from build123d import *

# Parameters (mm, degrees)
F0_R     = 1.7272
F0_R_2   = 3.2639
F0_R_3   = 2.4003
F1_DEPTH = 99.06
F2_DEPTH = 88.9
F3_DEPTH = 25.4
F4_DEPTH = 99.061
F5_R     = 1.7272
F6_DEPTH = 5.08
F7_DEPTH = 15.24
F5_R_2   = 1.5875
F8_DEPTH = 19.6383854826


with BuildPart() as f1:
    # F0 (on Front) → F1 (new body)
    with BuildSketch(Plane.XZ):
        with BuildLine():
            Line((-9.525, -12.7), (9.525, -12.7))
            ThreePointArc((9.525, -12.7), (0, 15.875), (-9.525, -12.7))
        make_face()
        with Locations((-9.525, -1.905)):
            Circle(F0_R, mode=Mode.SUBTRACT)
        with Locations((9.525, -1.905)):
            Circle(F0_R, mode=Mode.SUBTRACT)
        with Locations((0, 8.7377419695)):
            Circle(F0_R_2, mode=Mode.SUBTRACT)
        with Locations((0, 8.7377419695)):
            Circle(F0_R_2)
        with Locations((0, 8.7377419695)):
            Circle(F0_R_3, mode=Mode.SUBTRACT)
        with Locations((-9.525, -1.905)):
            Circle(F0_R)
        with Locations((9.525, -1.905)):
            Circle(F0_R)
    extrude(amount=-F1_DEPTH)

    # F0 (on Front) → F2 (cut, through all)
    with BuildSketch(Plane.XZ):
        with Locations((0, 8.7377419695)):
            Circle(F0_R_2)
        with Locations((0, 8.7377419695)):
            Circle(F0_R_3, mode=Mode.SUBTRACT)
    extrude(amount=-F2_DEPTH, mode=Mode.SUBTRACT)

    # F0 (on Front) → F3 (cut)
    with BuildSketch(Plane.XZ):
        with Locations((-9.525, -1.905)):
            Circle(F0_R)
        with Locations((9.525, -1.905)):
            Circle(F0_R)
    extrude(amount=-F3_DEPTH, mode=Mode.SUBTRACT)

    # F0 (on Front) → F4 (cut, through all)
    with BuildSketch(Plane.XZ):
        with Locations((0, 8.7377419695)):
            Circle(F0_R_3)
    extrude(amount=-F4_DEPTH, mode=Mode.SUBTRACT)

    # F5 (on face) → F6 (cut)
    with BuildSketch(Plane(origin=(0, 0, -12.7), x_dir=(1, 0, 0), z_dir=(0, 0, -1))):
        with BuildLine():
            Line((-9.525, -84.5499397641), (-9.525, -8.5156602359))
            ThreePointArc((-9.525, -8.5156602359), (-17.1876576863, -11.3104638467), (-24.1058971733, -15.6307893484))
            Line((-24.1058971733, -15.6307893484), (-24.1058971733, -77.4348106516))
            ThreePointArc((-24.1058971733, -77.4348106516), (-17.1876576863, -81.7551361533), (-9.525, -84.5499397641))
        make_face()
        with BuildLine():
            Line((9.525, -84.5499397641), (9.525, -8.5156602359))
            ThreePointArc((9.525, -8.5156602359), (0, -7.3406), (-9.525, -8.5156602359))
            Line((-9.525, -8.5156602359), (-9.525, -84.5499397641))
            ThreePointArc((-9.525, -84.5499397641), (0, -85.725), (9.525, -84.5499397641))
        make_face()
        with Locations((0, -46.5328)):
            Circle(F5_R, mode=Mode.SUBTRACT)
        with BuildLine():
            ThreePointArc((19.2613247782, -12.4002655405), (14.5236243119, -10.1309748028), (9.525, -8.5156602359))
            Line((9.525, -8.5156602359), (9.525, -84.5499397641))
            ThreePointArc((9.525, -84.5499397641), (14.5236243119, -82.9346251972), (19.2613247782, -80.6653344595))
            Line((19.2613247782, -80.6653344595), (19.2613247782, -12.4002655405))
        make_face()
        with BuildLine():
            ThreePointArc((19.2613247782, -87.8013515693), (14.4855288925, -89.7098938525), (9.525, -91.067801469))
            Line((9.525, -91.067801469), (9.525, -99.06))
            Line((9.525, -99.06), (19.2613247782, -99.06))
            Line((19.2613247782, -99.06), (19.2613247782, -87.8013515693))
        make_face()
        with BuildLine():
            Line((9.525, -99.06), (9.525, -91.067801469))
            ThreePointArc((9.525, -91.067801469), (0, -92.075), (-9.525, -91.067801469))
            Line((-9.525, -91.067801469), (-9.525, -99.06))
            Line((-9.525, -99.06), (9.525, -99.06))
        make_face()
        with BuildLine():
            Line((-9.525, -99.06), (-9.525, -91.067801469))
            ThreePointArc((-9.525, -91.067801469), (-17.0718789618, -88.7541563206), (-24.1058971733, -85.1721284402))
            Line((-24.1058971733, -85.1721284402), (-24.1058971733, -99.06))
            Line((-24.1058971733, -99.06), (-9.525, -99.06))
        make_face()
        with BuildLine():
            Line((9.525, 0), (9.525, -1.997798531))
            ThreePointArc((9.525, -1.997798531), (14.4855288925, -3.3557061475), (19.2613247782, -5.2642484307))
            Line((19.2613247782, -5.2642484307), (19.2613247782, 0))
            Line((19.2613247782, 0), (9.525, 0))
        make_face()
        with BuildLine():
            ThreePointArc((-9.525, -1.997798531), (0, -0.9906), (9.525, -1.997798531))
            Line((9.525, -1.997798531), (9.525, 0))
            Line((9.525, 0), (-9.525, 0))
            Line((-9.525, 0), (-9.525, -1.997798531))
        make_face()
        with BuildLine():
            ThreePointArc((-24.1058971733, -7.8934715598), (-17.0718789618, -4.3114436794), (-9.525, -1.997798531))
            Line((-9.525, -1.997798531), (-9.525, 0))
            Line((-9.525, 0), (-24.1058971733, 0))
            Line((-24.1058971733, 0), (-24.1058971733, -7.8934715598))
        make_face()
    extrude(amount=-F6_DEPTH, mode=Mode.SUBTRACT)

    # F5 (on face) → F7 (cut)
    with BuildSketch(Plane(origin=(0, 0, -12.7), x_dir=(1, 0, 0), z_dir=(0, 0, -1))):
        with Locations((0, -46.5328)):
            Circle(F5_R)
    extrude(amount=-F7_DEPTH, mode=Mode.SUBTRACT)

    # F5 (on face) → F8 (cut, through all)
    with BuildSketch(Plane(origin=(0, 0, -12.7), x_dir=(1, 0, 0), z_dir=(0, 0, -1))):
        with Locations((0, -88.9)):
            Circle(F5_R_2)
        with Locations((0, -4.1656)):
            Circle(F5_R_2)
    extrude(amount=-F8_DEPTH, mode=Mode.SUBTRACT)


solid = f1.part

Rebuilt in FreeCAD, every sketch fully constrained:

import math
import FreeCAD as App
import Part
import Sketcher
from FreeCAD import Vector
Q = App.Units.Quantity

doc = App.newDocument("Part")
body = doc.addObject("PartDesign::Body", "Body")

# Sketch on XZ plane
sketch1 = body.newObject("Sketcher::SketchObject", "Sketch")
sketch1.AttachmentSupport = (doc.getObject("XZ_Plane"), [""])
sketch1.MapMode = "FlatFace"
sketch1.addGeometry([
    Part.LineSegment(Vector(-9.525, -12.7, 0), Vector(9.525, -12.7, 0)),
    Part.ArcOfCircle(Part.Circle(Vector(0, 0, 0), Vector(0, 0, 1), 15.875), math.radians(-53.130102), math.radians(233.130102)),
    Part.Circle(Vector(0, 8.737742, 0), Vector(0, 0, 1), 2.4003),
], False)
sketch1.addConstraint([
    Sketcher.Constraint("Coincident", 0, 1, 1, 2),
    Sketcher.Constraint("Coincident", 1, 1, 0, 2),
    Sketcher.Constraint("Horizontal", 0),
    Sketcher.Constraint("Coincident", 1, 3, -1, 1),
    Sketcher.Constraint("PointOnObject", 2, 3, -2),
    Sketcher.Constraint("Diameter", 2, Q("0.189 in")),
    Sketcher.Constraint("Radius", 1, Q("0.625 in")),
    Sketcher.Constraint("DistanceX", 0, 1, 0, 2, Q("0.75 in")),
    Sketcher.Constraint("DistanceY", -1, 1, 2, 3, 8.737742),
])
pad1 = body.newObject("PartDesign::Pad", "Pad")
pad1.Profile = sketch1
pad1.Length = Q("3.9 in")
pad1.Reversed = True

# Sketch on XZ plane
sketch2 = body.newObject("Sketcher::SketchObject", "Sketch001")
sketch2.AttachmentSupport = (doc.getObject("XZ_Plane"), [""])
sketch2.MapMode = "FlatFace"
sketch2.addGeometry([
    Part.Circle(Vector(0, 8.737742, 0), Vector(0, 0, 1), 3.2639),
    Part.Circle(Vector(0, 8.737742, 0), Vector(0, 0, 1), 2.4003),
], False)
sketch2.addConstraint([
    Sketcher.Constraint("Coincident", 1, 3, 0, 3),
    Sketcher.Constraint("PointOnObject", 0, 3, -2),
    Sketcher.Constraint("Diameter", 0, Q("0.257 in")),
    Sketcher.Constraint("Diameter", 1, Q("0.189 in")),
    Sketcher.Constraint("DistanceY", -1, 1, 0, 3, 8.737742),
])
pocket1 = body.newObject("PartDesign::Pocket", "Pocket")
pocket1.Profile = sketch2
pocket1.Length = Q("3.5 in")

# Sketch on XZ plane
sketch3 = body.newObject("Sketcher::SketchObject", "Sketch002")
sketch3.AttachmentSupport = (doc.getObject("XZ_Plane"), [""])
sketch3.MapMode = "FlatFace"
sketch3.addGeometry([
    Part.Circle(Vector(-9.525, -1.905, 0), Vector(0, 0, 1), 1.7272),
    Part.Circle(Vector(9.525, -1.905, 0), Vector(0, 0, 1), 1.7272),
], False)
sketch3.addConstraint([
    Sketcher.Constraint("Equal", 0, 1),
    Sketcher.Constraint("Symmetric", 0, 3, 1, 3, -2),
    Sketcher.Constraint("Diameter", 0, Q("0.136 in")),
    Sketcher.Constraint("DistanceX", 0, 3, 1, 3, Q("0.75 in")),
    Sketcher.Constraint("DistanceY", 0, 3, -1, 1, Q("0.075 in")),
])
pocket2 = body.newObject("PartDesign::Pocket", "Pocket001")
pocket2.Profile = sketch3
pocket2.Length = Q("1 in")

# Sketch on XZ plane
sketch4 = body.newObject("Sketcher::SketchObject", "Sketch003")
sketch4.AttachmentSupport = (doc.getObject("XZ_Plane"), [""])
sketch4.MapMode = "FlatFace"
sketch4.addGeometry(Part.Circle(Vector(0, 8.737742, 0), Vector(0, 0, 1), 2.4003), False)
sketch4.addConstraint([
    Sketcher.Constraint("PointOnObject", 0, 3, -2),
    Sketcher.Constraint("Diameter", 0, Q("0.189 in")),
    Sketcher.Constraint("DistanceY", -1, 1, 0, 3, 8.737742),
])
pocket3 = body.newObject("PartDesign::Pocket", "Pocket002")
pocket3.Profile = sketch4
pocket3.Type = "ThroughAll"

# Sketch on XY plane
sketch5 = body.newObject("Sketcher::SketchObject", "Sketch004")
sketch5.AttachmentSupport = (doc.getObject("XY_Plane"), [""])
sketch5.MapMode = "FlatFace"
sketch5.AttachmentOffset = App.Placement(Vector(0, 0, -0.5 * 25.4), App.Rotation())
sketch5.addGeometry([
    Part.ArcOfCircle(Part.Circle(Vector(0, 46.5328, 0), Vector(0, 0, 1), 39.1922), math.radians(-127.956915), math.radians(-104.065623)),  # 0
    Part.LineSegment(Vector(-24.105897, 15.630789, 0), Vector(-24.105897, 77.434811, 0)),  # 1
    Part.ArcOfCircle(Part.Circle(Vector(0, 46.5328, 0), Vector(0, 0, 1), 39.1922), math.radians(104.065623), math.radians(127.956915)),  # 2
    Part.ArcOfCircle(Part.Circle(Vector(0, 46.5328, 0), Vector(0, 0, 1), 39.1922), math.radians(75.934377), math.radians(104.065623)),  # 3
    Part.ArcOfCircle(Part.Circle(Vector(0, 46.5328, 0), Vector(0, 0, 1), 39.1922), math.radians(60.563536), math.radians(75.934377)),  # 4
    Part.LineSegment(Vector(19.261325, 80.665334, 0), Vector(19.261325, 12.400266, 0)),  # 5
    Part.ArcOfCircle(Part.Circle(Vector(0, 46.5328, 0), Vector(0, 0, 1), 39.1922), math.radians(-75.934377), math.radians(-60.563536)),  # 6
    Part.ArcOfCircle(Part.Circle(Vector(0, 46.5328, 0), Vector(0, 0, 1), 39.1922), math.radians(-104.065623), math.radians(-75.934377)),  # 7
    Part.Circle(Vector(0, 46.5328, 0), Vector(0, 0, 1), 1.7272),  # 8
    Part.ArcOfCircle(Part.Circle(Vector(0, 46.5328, 0), Vector(0, 0, 1), 45.5422), math.radians(64.980066), math.radians(77.92765)),  # 9
    Part.ArcOfCircle(Part.Circle(Vector(0, 46.5328, 0), Vector(0, 0, 1), 45.5422), math.radians(77.92765), math.radians(102.07235)),  # 10
    Part.ArcOfCircle(Part.Circle(Vector(0, 46.5328, 0), Vector(0, 0, 1), 45.5422), math.radians(102.07235), math.radians(121.95878)),  # 11
    Part.LineSegment(Vector(-24.105897, 85.172128, 0), Vector(-24.105897, 99.06, 0)),  # 12
    Part.LineSegment(Vector(-24.105897, 99.06, 0), Vector(19.261325, 99.06, 0)),  # 13
    Part.LineSegment(Vector(19.261325, 99.06, 0), Vector(19.261325, 87.801352, 0)),  # 14
    Part.ArcOfCircle(Part.Circle(Vector(0, 46.5328, 0), Vector(0, 0, 1), 45.5422), math.radians(-77.92765), math.radians(-64.980066)),  # 15
    Part.LineSegment(Vector(19.261325, 5.264248, 0), Vector(19.261325, 0, 0)),  # 16
    Part.LineSegment(Vector(19.261325, 0, 0), Vector(-24.105897, 0, 0)),  # 17
    Part.LineSegment(Vector(-24.105897, 0, 0), Vector(-24.105897, 7.893472, 0)),  # 18
    Part.ArcOfCircle(Part.Circle(Vector(0, 46.5328, 0), Vector(0, 0, 1), 45.5422), math.radians(-121.95878), math.radians(-102.07235)),  # 19
    Part.ArcOfCircle(Part.Circle(Vector(0, 46.5328, 0), Vector(0, 0, 1), 45.5422), math.radians(-102.07235), math.radians(-77.92765)),  # 20
], False)
sketch5.addConstraint([
    Sketcher.Constraint("Coincident", 0, 1, 1, 1),
    Sketcher.Constraint("Coincident", 1, 2, 2, 2),
    Sketcher.Constraint("Tangent", 2, 1, 3, 2),
    Sketcher.Constraint("Tangent", 3, 1, 4, 2),
    Sketcher.Constraint("Coincident", 4, 1, 5, 1),
    Sketcher.Constraint("Coincident", 5, 2, 6, 2),
    Sketcher.Constraint("Tangent", 6, 1, 7, 2),
    Sketcher.Constraint("Tangent", 7, 1, 0, 2),
    Sketcher.Constraint("Tangent", 9, 2, 10, 1),
    Sketcher.Constraint("Tangent", 10, 2, 11, 1),
    Sketcher.Constraint("Coincident", 11, 2, 12, 1),
    Sketcher.Constraint("Coincident", 12, 2, 13, 1),
    Sketcher.Constraint("Coincident", 13, 2, 14, 1),
    Sketcher.Constraint("Coincident", 14, 2, 9, 1),
    Sketcher.Constraint("Coincident", 15, 2, 16, 1),
    Sketcher.Constraint("Coincident", 16, 2, 17, 1),
    Sketcher.Constraint("Coincident", 17, 2, 18, 1),
    Sketcher.Constraint("Coincident", 18, 2, 19, 1),
    Sketcher.Constraint("Tangent", 19, 2, 20, 1),
    Sketcher.Constraint("Tangent", 20, 2, 15, 1),
    Sketcher.Constraint("Vertical", 1),
    Sketcher.Constraint("Vertical", 5),
    Sketcher.Constraint("Vertical", 12),
    Sketcher.Constraint("Horizontal", 13),
    Sketcher.Constraint("Vertical", 14),
    Sketcher.Constraint("Vertical", 16),
    Sketcher.Constraint("Horizontal", 17),
    Sketcher.Constraint("Vertical", 18),
    Sketcher.Constraint("Coincident", 2, 3, 0, 3),
    Sketcher.Constraint("Coincident", 4, 3, 0, 3),
    Sketcher.Constraint("Coincident", 6, 3, 0, 3),
    Sketcher.Constraint("Coincident", 8, 3, 0, 3),
    Sketcher.Constraint("Coincident", 9, 3, 0, 3),
    Sketcher.Constraint("Coincident", 11, 3, 0, 3),
    Sketcher.Constraint("Coincident", 15, 3, 0, 3),
    Sketcher.Constraint("Coincident", 19, 3, 0, 3),
    Sketcher.Constraint("Equal", 0, 2),
    Sketcher.Constraint("Equal", 11, 15),
    Sketcher.Constraint("Symmetric", 2, 1, 3, 1, -2),
    Sketcher.Constraint("PointOnObject", 16, 2, -1),
    Sketcher.Constraint("Horizontal", 6, 1, 7, 1),
    Sketcher.Constraint("Horizontal", 9, 2, 10, 2),
    Sketcher.Constraint("Horizontal", 19, 2, 20, 2),
    Sketcher.Constraint("Vertical", 3, 1, 6, 1),
    Sketcher.Constraint("Vertical", 6, 1, 9, 2),
    Sketcher.Constraint("Vertical", 1, 2, 11, 2),
    Sketcher.Constraint("Vertical", 5, 2, 13, 2),
    Sketcher.Constraint("Vertical", 14, 2, 15, 2),
    Sketcher.Constraint("Vertical", 12, 2, 17, 2),
    Sketcher.Constraint("Vertical", 10, 2, 19, 2),
    Sketcher.Constraint("Diameter", 8, Q("0.136 in")),
    Sketcher.Constraint("Radius", 0, Q("1.543 in")),
    Sketcher.Constraint("Radius", 9, Q("1.793 in")),
    Sketcher.Constraint("DistanceY", -1, 1, 12, 2, Q("3.9 in")),
    Sketcher.Constraint("DistanceX", 2, 1, 3, 1, Q("0.75 in")),
    Sketcher.Constraint("DistanceY", -1, 1, 0, 3, Q("1.832 in")),
    Sketcher.Constraint("DistanceX", 13, 1, 13, 2, 43.367222),
    Sketcher.Constraint("DistanceY", 1, 1, 1, 2, 61.804021),
])
pocket4 = body.newObject("PartDesign::Pocket", "Pocket003")
pocket4.Profile = sketch5
pocket4.Length = Q("0.2 in")
pocket4.Reversed = True

# Sketch on XY plane
sketch6 = body.newObject("Sketcher::SketchObject", "Sketch005")
sketch6.AttachmentSupport = (doc.getObject("XY_Plane"), [""])
sketch6.MapMode = "FlatFace"
sketch6.AttachmentOffset = App.Placement(Vector(0, 0, -0.5 * 25.4), App.Rotation())
sketch6.addGeometry(Part.Circle(Vector(0, 46.5328, 0), Vector(0, 0, 1), 1.7272), False)
sketch6.addConstraint([
    Sketcher.Constraint("PointOnObject", 0, 3, -2),
    Sketcher.Constraint("Diameter", 0, Q("0.136 in")),
    Sketcher.Constraint("DistanceY", -1, 1, 0, 3, Q("1.832 in")),
])
pocket5 = body.newObject("PartDesign::Pocket", "Pocket004")
pocket5.Profile = sketch6
pocket5.Length = Q("0.6 in")
pocket5.Reversed = True

# Sketch on XY plane
sketch7 = body.newObject("Sketcher::SketchObject", "Sketch006")
sketch7.AttachmentSupport = (doc.getObject("XY_Plane"), [""])
sketch7.MapMode = "FlatFace"
sketch7.AttachmentOffset = App.Placement(Vector(0, 0, -0.5 * 25.4), App.Rotation())
sketch7.addGeometry([
    Part.Circle(Vector(0, 88.9, 0), Vector(0, 0, 1), 1.5875),
    Part.Circle(Vector(0, 4.1656, 0), Vector(0, 0, 1), 1.5875),
], False)
sketch7.addConstraint([
    Sketcher.Constraint("Equal", 0, 1),
    Sketcher.Constraint("PointOnObject", 0, 3, -2),
    Sketcher.Constraint("PointOnObject", 1, 3, -2),
    Sketcher.Constraint("Diameter", 0, Q("0.125 in")),
    Sketcher.Constraint("DistanceY", -1, 1, 0, 3, Q("3.5 in")),
    Sketcher.Constraint("DistanceY", -1, 1, 1, 3, Q("0.164 in")),
])
pocket6 = body.newObject("PartDesign::Pocket", "Pocket005")
pocket6.Profile = sketch7
pocket6.Length = 19.638385
pocket6.Reversed = True

doc.recompute()
